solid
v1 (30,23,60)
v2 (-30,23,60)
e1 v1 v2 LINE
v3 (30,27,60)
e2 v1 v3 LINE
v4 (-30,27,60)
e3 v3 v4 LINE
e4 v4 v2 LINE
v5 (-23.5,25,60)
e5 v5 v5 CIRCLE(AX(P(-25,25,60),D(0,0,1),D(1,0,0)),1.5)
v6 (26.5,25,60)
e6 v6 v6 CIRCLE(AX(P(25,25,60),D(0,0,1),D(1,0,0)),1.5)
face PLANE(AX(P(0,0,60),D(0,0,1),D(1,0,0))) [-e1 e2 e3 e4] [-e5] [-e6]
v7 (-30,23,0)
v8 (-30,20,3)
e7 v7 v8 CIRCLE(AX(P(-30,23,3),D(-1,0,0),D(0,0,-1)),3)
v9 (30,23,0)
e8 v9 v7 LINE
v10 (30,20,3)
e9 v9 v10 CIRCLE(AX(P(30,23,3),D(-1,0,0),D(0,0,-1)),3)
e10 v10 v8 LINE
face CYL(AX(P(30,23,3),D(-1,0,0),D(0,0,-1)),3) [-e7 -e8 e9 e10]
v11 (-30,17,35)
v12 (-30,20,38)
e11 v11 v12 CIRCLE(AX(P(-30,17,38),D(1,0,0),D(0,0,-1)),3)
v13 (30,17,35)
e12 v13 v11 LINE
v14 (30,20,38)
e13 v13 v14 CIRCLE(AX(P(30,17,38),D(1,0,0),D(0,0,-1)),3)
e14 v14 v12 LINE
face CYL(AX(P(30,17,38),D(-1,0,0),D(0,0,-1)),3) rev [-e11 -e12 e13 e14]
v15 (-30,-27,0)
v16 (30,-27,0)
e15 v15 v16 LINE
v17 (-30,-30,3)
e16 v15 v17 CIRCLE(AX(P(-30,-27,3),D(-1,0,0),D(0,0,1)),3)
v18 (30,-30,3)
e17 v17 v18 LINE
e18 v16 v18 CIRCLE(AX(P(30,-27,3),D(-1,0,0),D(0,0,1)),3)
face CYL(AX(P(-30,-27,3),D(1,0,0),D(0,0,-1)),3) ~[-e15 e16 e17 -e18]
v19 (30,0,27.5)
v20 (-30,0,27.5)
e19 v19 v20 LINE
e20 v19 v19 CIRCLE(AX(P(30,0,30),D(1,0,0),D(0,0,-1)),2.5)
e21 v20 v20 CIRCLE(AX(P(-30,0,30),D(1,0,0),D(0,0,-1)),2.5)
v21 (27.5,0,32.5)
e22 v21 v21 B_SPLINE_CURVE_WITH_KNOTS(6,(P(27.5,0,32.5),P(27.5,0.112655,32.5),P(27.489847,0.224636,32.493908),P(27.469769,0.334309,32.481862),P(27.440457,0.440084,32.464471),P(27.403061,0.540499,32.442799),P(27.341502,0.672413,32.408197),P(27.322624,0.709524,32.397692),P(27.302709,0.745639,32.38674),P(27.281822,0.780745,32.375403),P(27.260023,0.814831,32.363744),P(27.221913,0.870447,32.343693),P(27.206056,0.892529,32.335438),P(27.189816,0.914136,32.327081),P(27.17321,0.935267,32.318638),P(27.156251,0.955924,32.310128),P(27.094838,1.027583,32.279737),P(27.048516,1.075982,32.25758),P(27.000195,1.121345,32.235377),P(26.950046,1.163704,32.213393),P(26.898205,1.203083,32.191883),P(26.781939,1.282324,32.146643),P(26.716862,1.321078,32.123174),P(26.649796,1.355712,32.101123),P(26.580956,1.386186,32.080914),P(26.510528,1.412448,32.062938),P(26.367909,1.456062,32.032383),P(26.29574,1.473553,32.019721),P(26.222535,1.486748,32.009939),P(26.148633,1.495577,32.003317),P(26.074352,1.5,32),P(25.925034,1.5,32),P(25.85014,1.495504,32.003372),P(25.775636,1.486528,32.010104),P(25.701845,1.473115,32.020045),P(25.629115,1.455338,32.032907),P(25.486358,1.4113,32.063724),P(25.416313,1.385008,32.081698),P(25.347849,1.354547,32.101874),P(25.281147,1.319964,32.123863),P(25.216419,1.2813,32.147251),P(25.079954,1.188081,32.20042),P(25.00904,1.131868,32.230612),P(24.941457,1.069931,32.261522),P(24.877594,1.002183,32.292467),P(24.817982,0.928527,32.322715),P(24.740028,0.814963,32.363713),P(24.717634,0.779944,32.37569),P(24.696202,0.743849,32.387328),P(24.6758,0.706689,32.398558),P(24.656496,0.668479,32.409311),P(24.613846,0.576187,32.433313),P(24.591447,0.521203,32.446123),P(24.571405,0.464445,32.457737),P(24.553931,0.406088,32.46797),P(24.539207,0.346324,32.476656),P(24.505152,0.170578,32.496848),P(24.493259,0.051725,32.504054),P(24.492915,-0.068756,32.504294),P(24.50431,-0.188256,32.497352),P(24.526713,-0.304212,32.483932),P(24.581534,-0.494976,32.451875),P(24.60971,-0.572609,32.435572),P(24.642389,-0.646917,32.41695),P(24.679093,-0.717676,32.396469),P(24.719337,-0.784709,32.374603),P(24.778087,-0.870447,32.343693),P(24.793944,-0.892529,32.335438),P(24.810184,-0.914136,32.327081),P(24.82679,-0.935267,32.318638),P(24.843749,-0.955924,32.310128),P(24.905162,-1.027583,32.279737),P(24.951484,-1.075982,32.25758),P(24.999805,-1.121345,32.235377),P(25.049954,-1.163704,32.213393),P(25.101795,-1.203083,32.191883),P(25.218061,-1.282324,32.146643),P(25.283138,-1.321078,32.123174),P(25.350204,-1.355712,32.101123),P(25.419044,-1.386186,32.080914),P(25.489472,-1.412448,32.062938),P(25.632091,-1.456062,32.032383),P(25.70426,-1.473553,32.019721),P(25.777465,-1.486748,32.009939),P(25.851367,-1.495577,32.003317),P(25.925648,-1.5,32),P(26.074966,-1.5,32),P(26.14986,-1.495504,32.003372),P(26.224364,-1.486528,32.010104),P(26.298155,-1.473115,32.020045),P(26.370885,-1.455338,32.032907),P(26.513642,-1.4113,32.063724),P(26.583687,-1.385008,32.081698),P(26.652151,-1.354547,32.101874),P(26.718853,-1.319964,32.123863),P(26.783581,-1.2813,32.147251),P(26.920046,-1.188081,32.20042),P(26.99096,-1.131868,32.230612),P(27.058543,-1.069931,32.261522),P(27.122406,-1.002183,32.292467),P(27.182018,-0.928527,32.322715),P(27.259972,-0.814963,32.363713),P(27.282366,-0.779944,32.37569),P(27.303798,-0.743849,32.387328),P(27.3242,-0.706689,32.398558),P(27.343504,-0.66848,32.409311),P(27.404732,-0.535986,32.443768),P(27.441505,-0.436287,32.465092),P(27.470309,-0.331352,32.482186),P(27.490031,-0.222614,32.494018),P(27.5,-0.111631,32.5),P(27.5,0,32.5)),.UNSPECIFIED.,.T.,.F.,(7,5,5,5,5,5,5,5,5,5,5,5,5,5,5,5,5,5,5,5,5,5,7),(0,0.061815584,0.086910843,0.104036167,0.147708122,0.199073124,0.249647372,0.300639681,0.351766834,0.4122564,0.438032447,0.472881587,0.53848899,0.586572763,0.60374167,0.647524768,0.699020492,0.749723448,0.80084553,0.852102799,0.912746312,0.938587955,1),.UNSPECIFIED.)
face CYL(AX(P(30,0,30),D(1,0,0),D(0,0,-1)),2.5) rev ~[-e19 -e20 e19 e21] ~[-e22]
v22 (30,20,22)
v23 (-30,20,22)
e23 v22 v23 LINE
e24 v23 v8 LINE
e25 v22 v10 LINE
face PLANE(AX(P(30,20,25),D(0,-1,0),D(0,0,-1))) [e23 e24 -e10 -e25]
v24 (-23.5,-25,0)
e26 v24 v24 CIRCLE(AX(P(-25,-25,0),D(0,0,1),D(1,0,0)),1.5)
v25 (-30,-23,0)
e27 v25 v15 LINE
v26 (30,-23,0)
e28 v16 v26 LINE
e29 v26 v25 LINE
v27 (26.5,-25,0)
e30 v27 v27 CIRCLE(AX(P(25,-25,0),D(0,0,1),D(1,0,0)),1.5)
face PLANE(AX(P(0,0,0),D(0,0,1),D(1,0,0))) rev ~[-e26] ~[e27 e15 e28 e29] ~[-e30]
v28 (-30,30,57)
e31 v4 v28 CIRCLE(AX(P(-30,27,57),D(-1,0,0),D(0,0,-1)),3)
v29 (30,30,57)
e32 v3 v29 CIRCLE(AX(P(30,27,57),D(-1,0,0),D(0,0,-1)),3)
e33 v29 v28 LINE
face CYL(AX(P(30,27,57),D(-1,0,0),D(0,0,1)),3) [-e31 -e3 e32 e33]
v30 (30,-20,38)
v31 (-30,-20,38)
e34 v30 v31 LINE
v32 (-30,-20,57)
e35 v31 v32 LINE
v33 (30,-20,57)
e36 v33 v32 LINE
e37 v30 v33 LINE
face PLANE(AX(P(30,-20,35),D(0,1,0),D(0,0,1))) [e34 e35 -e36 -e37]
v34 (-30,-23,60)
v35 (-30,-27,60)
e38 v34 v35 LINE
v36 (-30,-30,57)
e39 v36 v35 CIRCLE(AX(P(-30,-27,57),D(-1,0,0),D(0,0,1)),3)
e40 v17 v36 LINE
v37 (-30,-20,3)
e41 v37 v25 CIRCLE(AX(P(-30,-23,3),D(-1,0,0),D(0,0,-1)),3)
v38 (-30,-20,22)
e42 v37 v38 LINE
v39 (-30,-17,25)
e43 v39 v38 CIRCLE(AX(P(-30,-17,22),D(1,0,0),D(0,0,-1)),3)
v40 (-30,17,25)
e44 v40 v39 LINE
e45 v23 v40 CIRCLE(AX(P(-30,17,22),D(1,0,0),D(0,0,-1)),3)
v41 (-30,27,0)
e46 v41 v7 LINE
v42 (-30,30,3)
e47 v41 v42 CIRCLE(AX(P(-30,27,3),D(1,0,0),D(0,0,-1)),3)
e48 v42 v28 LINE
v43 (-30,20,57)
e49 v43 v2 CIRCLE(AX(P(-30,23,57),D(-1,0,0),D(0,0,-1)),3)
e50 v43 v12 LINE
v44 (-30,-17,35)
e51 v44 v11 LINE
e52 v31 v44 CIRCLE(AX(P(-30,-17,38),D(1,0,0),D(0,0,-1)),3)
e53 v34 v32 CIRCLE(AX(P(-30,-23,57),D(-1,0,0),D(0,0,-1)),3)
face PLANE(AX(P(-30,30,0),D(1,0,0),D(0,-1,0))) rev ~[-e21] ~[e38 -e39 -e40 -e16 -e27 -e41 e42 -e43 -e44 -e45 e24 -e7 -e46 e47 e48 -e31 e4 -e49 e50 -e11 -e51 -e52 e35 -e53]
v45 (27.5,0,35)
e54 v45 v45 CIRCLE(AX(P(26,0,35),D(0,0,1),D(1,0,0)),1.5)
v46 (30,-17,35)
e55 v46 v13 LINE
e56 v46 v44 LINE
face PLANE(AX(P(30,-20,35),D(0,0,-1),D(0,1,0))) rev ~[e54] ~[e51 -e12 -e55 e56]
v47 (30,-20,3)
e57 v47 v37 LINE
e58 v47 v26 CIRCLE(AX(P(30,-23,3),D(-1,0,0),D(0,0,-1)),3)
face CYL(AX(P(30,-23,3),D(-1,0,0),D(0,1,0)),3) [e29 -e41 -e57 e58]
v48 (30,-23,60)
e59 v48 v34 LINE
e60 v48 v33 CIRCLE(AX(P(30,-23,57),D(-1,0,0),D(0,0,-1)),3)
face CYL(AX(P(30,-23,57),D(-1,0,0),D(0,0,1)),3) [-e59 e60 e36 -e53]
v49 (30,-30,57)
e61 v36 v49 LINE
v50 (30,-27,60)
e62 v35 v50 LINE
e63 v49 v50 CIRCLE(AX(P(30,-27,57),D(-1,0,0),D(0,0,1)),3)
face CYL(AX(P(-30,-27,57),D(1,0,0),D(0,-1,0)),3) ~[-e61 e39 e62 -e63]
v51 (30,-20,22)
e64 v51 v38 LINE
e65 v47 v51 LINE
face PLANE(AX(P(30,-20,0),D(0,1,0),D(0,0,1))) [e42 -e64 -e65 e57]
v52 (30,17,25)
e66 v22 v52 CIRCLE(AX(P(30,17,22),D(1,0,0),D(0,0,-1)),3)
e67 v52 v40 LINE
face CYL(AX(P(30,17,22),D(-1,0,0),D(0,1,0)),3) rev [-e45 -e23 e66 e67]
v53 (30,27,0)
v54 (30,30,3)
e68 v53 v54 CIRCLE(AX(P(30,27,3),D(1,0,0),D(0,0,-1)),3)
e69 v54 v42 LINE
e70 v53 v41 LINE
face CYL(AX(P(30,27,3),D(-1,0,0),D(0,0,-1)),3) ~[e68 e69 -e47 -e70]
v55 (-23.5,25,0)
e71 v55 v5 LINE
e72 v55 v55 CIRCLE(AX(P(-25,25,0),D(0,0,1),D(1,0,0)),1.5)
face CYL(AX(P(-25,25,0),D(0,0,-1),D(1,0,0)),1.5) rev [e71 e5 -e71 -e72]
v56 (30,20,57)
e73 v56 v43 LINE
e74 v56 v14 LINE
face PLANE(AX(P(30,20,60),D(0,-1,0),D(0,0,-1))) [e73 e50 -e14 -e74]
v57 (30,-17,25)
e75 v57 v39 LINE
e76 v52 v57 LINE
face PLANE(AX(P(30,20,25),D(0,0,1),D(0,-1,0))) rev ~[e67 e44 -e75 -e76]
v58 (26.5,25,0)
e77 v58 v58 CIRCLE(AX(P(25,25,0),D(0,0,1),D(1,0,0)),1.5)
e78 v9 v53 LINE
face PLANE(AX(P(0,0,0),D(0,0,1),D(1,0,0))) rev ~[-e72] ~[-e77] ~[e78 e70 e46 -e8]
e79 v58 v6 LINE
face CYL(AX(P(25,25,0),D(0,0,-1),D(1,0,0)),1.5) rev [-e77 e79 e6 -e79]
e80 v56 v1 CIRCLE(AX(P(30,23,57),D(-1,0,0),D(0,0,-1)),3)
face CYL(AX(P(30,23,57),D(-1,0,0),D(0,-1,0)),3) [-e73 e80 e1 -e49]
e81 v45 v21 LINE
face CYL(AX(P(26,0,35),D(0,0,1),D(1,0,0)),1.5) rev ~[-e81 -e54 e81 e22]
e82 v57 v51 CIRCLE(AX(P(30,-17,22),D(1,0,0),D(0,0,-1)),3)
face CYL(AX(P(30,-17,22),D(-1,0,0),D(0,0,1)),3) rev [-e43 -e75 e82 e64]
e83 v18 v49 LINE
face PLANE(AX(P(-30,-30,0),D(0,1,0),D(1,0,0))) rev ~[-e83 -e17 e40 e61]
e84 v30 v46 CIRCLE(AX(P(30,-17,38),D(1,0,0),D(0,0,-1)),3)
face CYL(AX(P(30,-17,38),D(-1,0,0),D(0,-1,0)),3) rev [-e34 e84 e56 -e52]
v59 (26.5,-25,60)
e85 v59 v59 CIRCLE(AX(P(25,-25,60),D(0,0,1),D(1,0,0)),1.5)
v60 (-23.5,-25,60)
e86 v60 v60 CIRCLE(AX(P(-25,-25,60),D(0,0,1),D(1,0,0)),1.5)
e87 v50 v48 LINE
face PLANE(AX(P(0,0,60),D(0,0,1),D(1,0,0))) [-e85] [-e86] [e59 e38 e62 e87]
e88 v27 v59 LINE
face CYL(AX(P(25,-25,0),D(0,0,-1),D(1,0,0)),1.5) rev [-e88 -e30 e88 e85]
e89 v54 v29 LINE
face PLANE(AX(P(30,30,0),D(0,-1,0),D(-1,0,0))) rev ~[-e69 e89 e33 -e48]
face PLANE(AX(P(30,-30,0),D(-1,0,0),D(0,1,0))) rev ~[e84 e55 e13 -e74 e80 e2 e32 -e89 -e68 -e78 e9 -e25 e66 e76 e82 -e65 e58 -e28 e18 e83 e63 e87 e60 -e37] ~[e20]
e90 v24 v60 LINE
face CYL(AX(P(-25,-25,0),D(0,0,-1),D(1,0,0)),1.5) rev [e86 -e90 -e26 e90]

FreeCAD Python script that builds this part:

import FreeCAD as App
import Part
import Sketcher
Q = App.Units.Quantity


def edges_at(feature, points):
    """Names of the edges that pass closest to the given points."""
    edges = feature.Shape.Edges
    near = lambda p: min(range(len(edges)), key=lambda i: edges[i].distToShape(Part.Vertex(*p))[0])
    return sorted({f"Edge{near(p) + 1}" for p in points})

doc = App.newDocument("Part")
body = doc.addObject("PartDesign::Body", "Body")

# Sketch on XY plane
sketch1 = doc.addObject("Sketcher::SketchObject", "Sketch")
body.addObject(sketch1)
sketch1.AttachmentSupport = (doc.XY_Plane, [""])
sketch1.MapMode = "FlatFace"
sketch1.addGeometry([
    Part.LineSegment(App.Vector(-30, 30, 0), App.Vector(-30, -30, 0)),  # 0
    Part.LineSegment(App.Vector(-30, -30, 0), App.Vector(30, -30, 0)),  # 1
    Part.LineSegment(App.Vector(30, -30, 0), App.Vector(30, 30, 0)),  # 2
    Part.LineSegment(App.Vector(30, 30, 0), App.Vector(-30, 30, 0)),  # 3
    Part.Circle(App.Vector(-25, -25, 0), App.Vector(0, 0, 1), 1.5),  # 4
    Part.Circle(App.Vector(25, -25, 0), App.Vector(0, 0, 1), 1.5),  # 5
    Part.Circle(App.Vector(-25, 25, 0), App.Vector(0, 0, 1), 1.5),  # 6
    Part.Circle(App.Vector(25, 25, 0), App.Vector(0, 0, 1), 1.5),  # 7
], False)
sketch1.addConstraint([
    Sketcher.Constraint("Coincident", 0, 2, 1, 1),
    Sketcher.Constraint("Coincident", 1, 2, 2, 1),
    Sketcher.Constraint("Coincident", 2, 2, 3, 1),
    Sketcher.Constraint("Coincident", 3, 2, 0, 1),
    Sketcher.Constraint("Vertical", 0),
    Sketcher.Constraint("Horizontal", 1),
    Sketcher.Constraint("Vertical", 2),
    Sketcher.Constraint("Horizontal", 3),
    Sketcher.Constraint("Equal", 4, 5),
    Sketcher.Constraint("Equal", 5, 6),
    Sketcher.Constraint("Equal", 6, 7),
    Sketcher.Constraint("Symmetric", 5, 3, 6, 3, -1, 1),
    Sketcher.Constraint("Symmetric", 4, 3, 7, 3, -1, 1),
    Sketcher.Constraint("Symmetric", 0, 2, 2, 2, -1, 1),
    Sketcher.Constraint("Symmetric", 4, 3, 5, 3, -2),
    Sketcher.Constraint("Equal", 3, 0),
    Sketcher.Constraint("Diameter", 4, Q("3 mm")),
    Sketcher.Constraint("DistanceX", 1, 1, 1, 2, Q("60 mm")),
    Sketcher.Constraint("DistanceX", 0, 2, 4, 3, Q("5 mm")),
    Sketcher.Constraint("DistanceY", 0, 2, 4, 3, Q("5 mm")),
])
pad1 = doc.addObject("PartDesign::Pad", "Pad")
body.addObject(pad1)
pad1.Profile = sketch1
pad1.Length = 60

# Sketch on YZ plane
sketch2 = doc.addObject("Sketcher::SketchObject", "Sketch001")
body.addObject(sketch2)
sketch2.AttachmentSupport = (doc.YZ_Plane, [""])
sketch2.MapMode = "FlatFace"
sketch2.AttachmentOffset = App.Placement(App.Vector(0, 0, 30), App.Rotation())
sketch2.addGeometry(Part.Circle(App.Vector(0, 30, 0), App.Vector(0, 0, 1), 2.5), False)
sketch2.addConstraint([
    Sketcher.Constraint("PointOnObject", 0, 3, -2),
    Sketcher.Constraint("Diameter", 0, Q("5 mm")),
    Sketcher.Constraint("DistanceY", -1, 1, 0, 3, Q("30 mm")),
])
pocket1 = doc.addObject("PartDesign::Pocket", "Pocket")
body.addObject(pocket1)
pocket1.Profile = sketch2
pocket1.Length = 60

# Sketch on YZ plane
sketch3 = doc.addObject("Sketcher::SketchObject", "Sketch002")
body.addObject(sketch3)
sketch3.AttachmentSupport = (doc.YZ_Plane, [""])
sketch3.MapMode = "FlatFace"
sketch3.AttachmentOffset = App.Placement(App.Vector(0, 0, 30), App.Rotation())
sketch3.addGeometry([
    Part.LineSegment(App.Vector(20, 35, 0), App.Vector(20, 60, 0)),  # 0
    Part.LineSegment(App.Vector(20, 60, 0), App.Vector(-20, 60, 0)),  # 1
    Part.LineSegment(App.Vector(-20, 60, 0), App.Vector(-20, 35, 0)),  # 2
    Part.LineSegment(App.Vector(-20, 35, 0), App.Vector(20, 35, 0)),  # 3
    Part.LineSegment(App.Vector(20, 0, 0), App.Vector(20, 25, 0)),  # 4
    Part.LineSegment(App.Vector(20, 25, 0), App.Vector(-20, 25, 0)),  # 5
    Part.LineSegment(App.Vector(-20, 25, 0), App.Vector(-20, 0, 0)),  # 6
    Part.LineSegment(App.Vector(-20, 0, 0), App.Vector(20, 0, 0)),  # 7
], False)
sketch3.addConstraint([
    Sketcher.Constraint("Coincident", 0, 2, 1, 1),
    Sketcher.Constraint("Coincident", 1, 2, 2, 1),
    Sketcher.Constraint("Coincident", 2, 2, 3, 1),
    Sketcher.Constraint("Coincident", 3, 2, 0, 1),
    Sketcher.Constraint("Coincident", 4, 2, 5, 1),
    Sketcher.Constraint("Coincident", 5, 2, 6, 1),
    Sketcher.Constraint("Coincident", 6, 2, 7, 1),
    Sketcher.Constraint("Coincident", 7, 2, 4, 1),
    Sketcher.Constraint("Vertical", 0),
    Sketcher.Constraint("Horizontal", 1),
    Sketcher.Constraint("Vertical", 2),
    Sketcher.Constraint("Horizontal", 3),
    Sketcher.Constraint("Vertical", 4),
    Sketcher.Constraint("Horizontal", 5),
    Sketcher.Constraint("Vertical", 6),
    Sketcher.Constraint("Horizontal", 7),
    Sketcher.Constraint("Symmetric", 6, 2, 7, 2, -1, 1),
    Sketcher.Constraint("Vertical", 3, 2, 4, 2),
    Sketcher.Constraint("Vertical", 2, 2, 5, 2),
    Sketcher.Constraint("Equal", 2, 4),
    Sketcher.Constraint("DistanceY", 4, 2, 3, 2, Q("10 mm")),
    Sketcher.Constraint("DistanceX", 1, 2, 1, 1, Q("40 mm")),
    Sketcher.Constraint("DistanceY", 0, 1, 0, 2, Q("25 mm")),
])
pocket2 = doc.addObject("PartDesign::Pocket", "Pocket001")
body.addObject(pocket2)
pocket2.Profile = sketch3
pocket2.Length = 60
doc.recompute()

fillet = doc.addObject("PartDesign::Fillet", "Fillet")
body.addObject(fillet)
fillet.Base = (pocket2, edges_at(pocket2, [
    (0, -30, 60),
    (0, -20, 60),
    (0, 30, 60),
    (0, 20, 60),
    (0, 20, 35),
    (0, -20, 35),
    (0, -20, 0),
    (0, -30, 0),
    (0, -20, 25),
    (0, 20, 25),
    (0, 30, 0),
    (0, 20, 0),
]))
fillet.Radius = 3

# Sketch on XY plane
sketch4 = doc.addObject("Sketcher::SketchObject", "Sketch003")
body.addObject(sketch4)
sketch4.AttachmentSupport = (doc.XY_Plane, [""])
sketch4.MapMode = "FlatFace"
sketch4.AttachmentOffset = App.Placement(App.Vector(0, 0, 35), App.Rotation())
sketch4.addGeometry(Part.Circle(App.Vector(26, 0, 0), App.Vector(0, 0, 1), 1.5), False)
sketch4.addConstraint([
    Sketcher.Constraint("PointOnObject", 0, 3, -1),
    Sketcher.Constraint("Diameter", 0, Q("3 mm")),
    Sketcher.Constraint("DistanceX", -1, 1, 0, 3, Q("26 mm")),
])
pocket3 = doc.addObject("PartDesign::Pocket", "Pocket002")
body.addObject(pocket3)
pocket3.Profile = sketch4
pocket3.Length = 3.75

doc.recompute()
